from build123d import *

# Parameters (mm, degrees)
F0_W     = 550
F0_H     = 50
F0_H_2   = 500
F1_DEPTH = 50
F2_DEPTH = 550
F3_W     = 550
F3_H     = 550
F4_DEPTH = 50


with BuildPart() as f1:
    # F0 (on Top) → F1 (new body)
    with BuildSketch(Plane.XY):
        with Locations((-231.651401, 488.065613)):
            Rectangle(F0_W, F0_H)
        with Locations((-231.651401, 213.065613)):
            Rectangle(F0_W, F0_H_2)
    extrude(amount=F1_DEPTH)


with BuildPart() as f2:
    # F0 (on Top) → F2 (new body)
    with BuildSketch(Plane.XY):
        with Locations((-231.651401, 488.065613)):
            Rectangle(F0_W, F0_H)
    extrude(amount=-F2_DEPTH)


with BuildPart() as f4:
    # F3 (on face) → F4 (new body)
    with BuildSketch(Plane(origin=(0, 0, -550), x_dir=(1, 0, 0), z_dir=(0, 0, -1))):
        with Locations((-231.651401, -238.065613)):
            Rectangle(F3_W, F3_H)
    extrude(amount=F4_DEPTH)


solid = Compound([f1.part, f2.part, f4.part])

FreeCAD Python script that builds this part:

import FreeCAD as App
import Part
import Sketcher
Q = App.Units.Quantity

doc = App.newDocument("Part")
body = doc.addObject("PartDesign::Body", "Body")

sketch1 = body.newObject("Sketcher::SketchObject", "Sketch")
sketch1.AttachmentSupport = (doc.getObject("XY_Plane"), [""])
sketch1.MapMode = "FlatFace"
sketch1.addGeometry(Part.LineSegment(App.Vector(-506.651401, 513.065613, 0), App.Vector(-506.651401, -36.934387, 0)), False)
sketch1.addGeometry(Part.LineSegment(App.Vector(-506.651401, -36.934387, 0), App.Vector(43.348599, -36.934387, 0)), False)
sketch1.addGeometry(Part.LineSegment(App.Vector(43.348599, -36.934387, 0), App.Vector(43.348599, 513.065613, 0)), False)
sketch1.addGeometry(Part.LineSegment(App.Vector(43.348599, 513.065613, 0), App.Vector(-506.651401, 513.065613, 0)), False)
sketch1.addConstraint(Sketcher.Constraint("Coincident", 0, 2, 1, 1))
sketch1.addConstraint(Sketcher.Constraint("Coincident", 1, 2, 2, 1))
sketch1.addConstraint(Sketcher.Constraint("Coincident", 2, 2, 3, 1))
sketch1.addConstraint(Sketcher.Constraint("Coincident", 3, 2, 0, 1))
sketch1.addConstraint(Sketcher.Constraint("Vertical", 0))
sketch1.addConstraint(Sketcher.Constraint("Horizontal", 1))
sketch1.addConstraint(Sketcher.Constraint("Vertical", 2))
sketch1.addConstraint(Sketcher.Constraint("Horizontal", 3))
sketch1.addConstraint(Sketcher.Constraint("Equal", 3, 0))
sketch1.addConstraint(Sketcher.Constraint("DistanceX", 1, 1, 1, 2, Q("550 mm")))
sketch1.addConstraint(Sketcher.Constraint("DistanceX", 0, 2, -1, 1, Q("506.651401 mm")))
sketch1.addConstraint(Sketcher.Constraint("DistanceY", 0, 2, -1, 1, Q("36.934387 mm")))
pad1 = body.newObject("PartDesign::Pad", "Pad")
pad1.Profile = sketch1
pad1.Length = 50
body2 = doc.addObject("PartDesign::Body", "Body001")

sketch2 = body2.newObject("Sketcher::SketchObject", "Sketch001")
sketch2.AttachmentSupport = (doc.getObject("XY_Plane001"), [""])
sketch2.MapMode = "FlatFace"
sketch2.addGeometry(Part.LineSegment(App.Vector(-506.651401, 513.065613, 0), App.Vector(-506.651401, 463.065613, 0)), False)
sketch2.addGeometry(Part.LineSegment(App.Vector(-506.651401, 463.065613, 0), App.Vector(43.348599, 463.065613, 0)), False)
sketch2.addGeometry(Part.LineSegment(App.Vector(43.348599, 463.065613, 0), App.Vector(43.348599, 513.065613, 0)), False)
sketch2.addGeometry(Part.LineSegment(App.Vector(43.348599, 513.065613, 0), App.Vector(-506.651401, 513.065613, 0)), False)
sketch2.addConstraint(Sketcher.Constraint("Coincident", 0, 2, 1, 1))
sketch2.addConstraint(Sketcher.Constraint("Coincident", 1, 2, 2, 1))
sketch2.addConstraint(Sketcher.Constraint("Coincident", 2, 2, 3, 1))
sketch2.addConstraint(Sketcher.Constraint("Coincident", 3, 2, 0, 1))
sketch2.addConstraint(Sketcher.Constraint("Vertical", 0))
sketch2.addConstraint(Sketcher.Constraint("Horizontal", 1))
sketch2.addConstraint(Sketcher.Constraint("Vertical", 2))
sketch2.addConstraint(Sketcher.Constraint("Horizontal", 3))
sketch2.addConstraint(Sketcher.Constraint("DistanceX", 1, 1, 1, 2, Q("550 mm")))
sketch2.addConstraint(Sketcher.Constraint("DistanceY", 0, 2, 0, 1, Q("50 mm")))
sketch2.addConstraint(Sketcher.Constraint("DistanceX", 0, 2, -1, 1, Q("506.651401 mm")))
sketch2.addConstraint(Sketcher.Constraint("DistanceY", -1, 1, 0, 2, Q("463.065613 mm")))
pad2 = body2.newObject("PartDesign::Pad", "Pad001")
pad2.Profile = sketch2
pad2.Length = 550
pad2.Reversed = True
body3 = doc.addObject("PartDesign::Body", "Body002")

sketch3 = body3.newObject("Sketcher::SketchObject", "Sketch002")
sketch3.AttachmentSupport = (doc.getObject("XY_Plane002"), [""])
sketch3.MapMode = "FlatFace"
sketch3.AttachmentOffset = App.Placement(App.Vector(0, 0, -550), App.Rotation())
sketch3.addGeometry(Part.LineSegment(App.Vector(-506.651401, -36.934387, 0), App.Vector(-506.651401, 513.065613, 0)), False)
sketch3.addGeometry(Part.LineSegment(App.Vector(-506.651401, 513.065613, 0), App.Vector(43.348599, 513.065613, 0)), False)
sketch3.addGeometry(Part.LineSegment(App.Vector(43.348599, 513.065613, 0), App.Vector(43.348599, -36.934387, 0)), False)
sketch3.addGeometry(Part.LineSegment(App.Vector(43.348599, -36.934387, 0), App.Vector(-506.651401, -36.934387, 0)), False)
sketch3.addConstraint(Sketcher.Constraint("Coincident", 0, 2, 1, 1))
sketch3.addConstraint(Sketcher.Constraint("Coincident", 1, 2, 2, 1))
sketch3.addConstraint(Sketcher.Constraint("Coincident", 2, 2, 3, 1))
sketch3.addConstraint(Sketcher.Constraint("Coincident", 3, 2, 0, 1))
sketch3.addConstraint(Sketcher.Constraint("Vertical", 0))
sketch3.addConstraint(Sketcher.Constraint("Horizontal", 1))
sketch3.addConstraint(Sketcher.Constraint("Vertical", 2))
sketch3.addConstraint(Sketcher.Constraint("Horizontal", 3))
sketch3.addConstraint(Sketcher.Constraint("Equal", 3, 0))
sketch3.addConstraint(Sketcher.Constraint("DistanceX", 1, 1, 1, 2, Q("550 mm")))
sketch3.addConstraint(Sketcher.Constraint("DistanceX", 0, 2, -1, 1, Q("506.651401 mm")))
sketch3.addConstraint(Sketcher.Constraint("DistanceY", -1, 1, 0, 2, Q("513.065613 mm")))
pad3 = body3.newObject("PartDesign::Pad", "Pad002")
pad3.Profile = sketch3
pad3.Length = 50
pad3.Reversed = True

doc.recompute()
